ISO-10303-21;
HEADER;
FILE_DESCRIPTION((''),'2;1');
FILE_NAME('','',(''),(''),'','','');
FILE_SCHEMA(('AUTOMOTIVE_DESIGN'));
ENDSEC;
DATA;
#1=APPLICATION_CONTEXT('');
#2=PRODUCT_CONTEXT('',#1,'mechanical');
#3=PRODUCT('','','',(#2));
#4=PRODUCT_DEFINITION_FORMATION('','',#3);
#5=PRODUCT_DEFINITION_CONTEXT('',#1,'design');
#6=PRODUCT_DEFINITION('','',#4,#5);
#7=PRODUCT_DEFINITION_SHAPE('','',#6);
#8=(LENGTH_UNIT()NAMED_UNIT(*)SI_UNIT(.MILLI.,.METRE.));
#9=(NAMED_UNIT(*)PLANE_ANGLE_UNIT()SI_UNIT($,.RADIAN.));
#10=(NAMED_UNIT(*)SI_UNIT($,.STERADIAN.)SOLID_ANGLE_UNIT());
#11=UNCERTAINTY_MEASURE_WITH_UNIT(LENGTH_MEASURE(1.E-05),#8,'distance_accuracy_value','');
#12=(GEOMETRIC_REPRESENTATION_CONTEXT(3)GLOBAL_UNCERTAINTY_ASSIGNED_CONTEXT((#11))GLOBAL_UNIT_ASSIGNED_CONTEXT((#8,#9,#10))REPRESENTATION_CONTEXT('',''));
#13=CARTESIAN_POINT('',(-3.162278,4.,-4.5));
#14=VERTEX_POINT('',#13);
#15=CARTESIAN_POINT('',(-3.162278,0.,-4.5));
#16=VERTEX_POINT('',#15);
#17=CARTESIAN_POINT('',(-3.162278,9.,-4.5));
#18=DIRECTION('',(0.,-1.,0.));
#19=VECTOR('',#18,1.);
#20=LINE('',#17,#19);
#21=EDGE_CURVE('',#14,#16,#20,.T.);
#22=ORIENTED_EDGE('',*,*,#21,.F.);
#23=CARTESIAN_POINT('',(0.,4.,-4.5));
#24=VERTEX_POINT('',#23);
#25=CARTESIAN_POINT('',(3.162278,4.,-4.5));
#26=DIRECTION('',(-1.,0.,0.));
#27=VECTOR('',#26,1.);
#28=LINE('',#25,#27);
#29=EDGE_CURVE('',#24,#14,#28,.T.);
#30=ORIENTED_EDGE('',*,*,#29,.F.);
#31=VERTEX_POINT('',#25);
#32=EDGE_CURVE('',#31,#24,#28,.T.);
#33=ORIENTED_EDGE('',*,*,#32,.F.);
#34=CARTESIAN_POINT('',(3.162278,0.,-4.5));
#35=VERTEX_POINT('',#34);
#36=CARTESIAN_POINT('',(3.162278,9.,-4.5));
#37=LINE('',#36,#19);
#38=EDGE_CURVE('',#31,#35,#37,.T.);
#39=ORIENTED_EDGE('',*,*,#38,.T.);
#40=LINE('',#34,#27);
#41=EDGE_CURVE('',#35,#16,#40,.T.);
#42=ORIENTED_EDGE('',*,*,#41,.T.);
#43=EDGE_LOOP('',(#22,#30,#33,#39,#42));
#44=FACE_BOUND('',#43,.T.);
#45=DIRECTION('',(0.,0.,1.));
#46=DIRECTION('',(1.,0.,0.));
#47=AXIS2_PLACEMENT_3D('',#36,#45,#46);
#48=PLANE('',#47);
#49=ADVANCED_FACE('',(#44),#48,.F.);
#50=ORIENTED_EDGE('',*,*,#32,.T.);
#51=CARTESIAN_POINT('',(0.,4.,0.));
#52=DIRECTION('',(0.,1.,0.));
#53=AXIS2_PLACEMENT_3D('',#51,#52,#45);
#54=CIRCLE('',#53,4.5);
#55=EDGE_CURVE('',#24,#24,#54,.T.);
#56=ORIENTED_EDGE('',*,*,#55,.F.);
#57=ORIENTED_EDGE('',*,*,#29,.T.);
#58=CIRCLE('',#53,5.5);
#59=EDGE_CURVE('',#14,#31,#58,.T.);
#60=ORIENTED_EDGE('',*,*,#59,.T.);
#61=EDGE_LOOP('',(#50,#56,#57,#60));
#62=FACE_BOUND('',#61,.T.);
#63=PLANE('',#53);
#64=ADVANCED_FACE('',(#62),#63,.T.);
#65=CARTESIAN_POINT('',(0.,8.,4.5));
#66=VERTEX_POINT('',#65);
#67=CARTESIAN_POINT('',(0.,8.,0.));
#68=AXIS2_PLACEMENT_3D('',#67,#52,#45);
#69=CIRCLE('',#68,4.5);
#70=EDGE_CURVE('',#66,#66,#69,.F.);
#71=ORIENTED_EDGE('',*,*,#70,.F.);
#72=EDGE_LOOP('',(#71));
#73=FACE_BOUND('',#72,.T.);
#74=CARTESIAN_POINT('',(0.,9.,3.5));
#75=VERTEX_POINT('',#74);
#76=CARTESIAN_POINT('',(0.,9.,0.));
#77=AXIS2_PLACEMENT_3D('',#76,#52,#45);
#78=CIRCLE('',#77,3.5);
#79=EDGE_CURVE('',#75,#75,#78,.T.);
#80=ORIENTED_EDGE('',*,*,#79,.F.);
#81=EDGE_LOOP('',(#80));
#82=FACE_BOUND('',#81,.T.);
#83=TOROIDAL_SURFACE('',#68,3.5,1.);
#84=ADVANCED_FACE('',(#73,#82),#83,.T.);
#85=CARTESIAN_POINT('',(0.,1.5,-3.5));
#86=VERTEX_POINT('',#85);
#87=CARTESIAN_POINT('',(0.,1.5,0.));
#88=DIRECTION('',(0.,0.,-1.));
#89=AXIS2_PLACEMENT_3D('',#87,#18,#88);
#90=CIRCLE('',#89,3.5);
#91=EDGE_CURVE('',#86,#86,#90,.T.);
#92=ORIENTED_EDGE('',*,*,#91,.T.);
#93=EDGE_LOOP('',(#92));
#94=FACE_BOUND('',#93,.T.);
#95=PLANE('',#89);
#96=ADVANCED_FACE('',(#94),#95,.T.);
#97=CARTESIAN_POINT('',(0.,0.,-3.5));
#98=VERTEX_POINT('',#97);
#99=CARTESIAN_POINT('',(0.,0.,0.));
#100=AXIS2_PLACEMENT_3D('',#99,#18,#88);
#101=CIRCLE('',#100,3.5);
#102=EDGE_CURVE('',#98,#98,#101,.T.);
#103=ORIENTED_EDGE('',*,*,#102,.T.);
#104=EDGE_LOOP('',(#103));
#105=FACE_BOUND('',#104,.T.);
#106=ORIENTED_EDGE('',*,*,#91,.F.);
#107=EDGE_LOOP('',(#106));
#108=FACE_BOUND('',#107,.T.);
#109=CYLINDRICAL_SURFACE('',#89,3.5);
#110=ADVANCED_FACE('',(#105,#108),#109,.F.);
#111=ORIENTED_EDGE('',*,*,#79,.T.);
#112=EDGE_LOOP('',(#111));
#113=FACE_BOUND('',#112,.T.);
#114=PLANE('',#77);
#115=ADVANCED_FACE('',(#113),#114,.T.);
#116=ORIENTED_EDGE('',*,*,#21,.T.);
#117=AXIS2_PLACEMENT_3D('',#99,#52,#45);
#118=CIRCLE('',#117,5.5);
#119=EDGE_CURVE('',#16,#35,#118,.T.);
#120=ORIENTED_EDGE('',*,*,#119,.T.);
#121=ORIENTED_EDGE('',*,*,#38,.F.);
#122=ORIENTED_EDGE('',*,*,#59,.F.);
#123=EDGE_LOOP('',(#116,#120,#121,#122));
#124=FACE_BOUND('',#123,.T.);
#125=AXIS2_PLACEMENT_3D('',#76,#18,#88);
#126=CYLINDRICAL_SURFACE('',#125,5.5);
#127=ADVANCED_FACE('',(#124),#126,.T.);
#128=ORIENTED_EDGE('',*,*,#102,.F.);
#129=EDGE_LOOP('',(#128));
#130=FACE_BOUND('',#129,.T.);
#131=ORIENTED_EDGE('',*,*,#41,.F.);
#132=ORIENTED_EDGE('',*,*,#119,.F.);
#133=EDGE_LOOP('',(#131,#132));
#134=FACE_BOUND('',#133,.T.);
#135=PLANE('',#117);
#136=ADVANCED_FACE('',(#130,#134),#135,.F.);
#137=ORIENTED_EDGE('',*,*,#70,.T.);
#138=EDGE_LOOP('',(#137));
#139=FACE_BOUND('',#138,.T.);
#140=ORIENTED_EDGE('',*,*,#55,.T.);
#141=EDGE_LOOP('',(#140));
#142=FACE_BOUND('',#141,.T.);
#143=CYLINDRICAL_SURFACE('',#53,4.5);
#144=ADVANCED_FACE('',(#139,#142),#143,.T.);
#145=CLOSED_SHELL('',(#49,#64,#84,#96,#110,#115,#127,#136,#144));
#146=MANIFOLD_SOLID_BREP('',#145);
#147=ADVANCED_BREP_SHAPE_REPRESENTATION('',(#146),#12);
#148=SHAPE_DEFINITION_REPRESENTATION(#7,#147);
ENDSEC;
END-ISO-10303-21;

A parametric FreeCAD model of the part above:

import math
import FreeCAD as App
import Part
import Sketcher
from FreeCAD import Vector


def edges_at(feature, points):
    """Names of the edges that pass closest to the given points."""
    edges = feature.Shape.Edges
    near = lambda p: min(range(len(edges)), key=lambda i: edges[i].distToShape(Part.Vertex(*p))[0])
    return sorted({f"Edge{near(p) + 1}" for p in points})

doc = App.newDocument("Part")
body = doc.addObject("PartDesign::Body", "Body")

# Sketch on XZ plane
sketch1 = body.newObject("Sketcher::SketchObject", "Sketch")
sketch1.AttachmentSupport = (doc.getObject("XZ_Plane"), [""])
sketch1.MapMode = "FlatFace"
sketch1.addGeometry(Part.LineSegment(Vector(3, -4, 0), Vector(-3, -4, 0)), False)
sketch1.addGeometry(Part.ArcOfCircle(Part.Circle(Vector(0, 0, 0), Vector(0, 0, 1), 6), math.radians(-55), math.radians(235)), False)
sketch1.addConstraint(Sketcher.Constraint("Coincident", 0, 1, 1, 1))
sketch1.addConstraint(Sketcher.Constraint("Coincident", 1, 2, 0, 2))
sketch1.addConstraint(Sketcher.Constraint("Horizontal", 0))
sketch1.addConstraint(Sketcher.Constraint("Coincident", 1, 3, -1, 1))
sketch1.addConstraint(Sketcher.Constraint("Radius", 1, 5.5))
sketch1.addConstraint(Sketcher.Constraint("DistanceY", 0, 1, -1, 1, 4.5))
pad1 = body.newObject("PartDesign::Pad", "Pad")
pad1.Profile = sketch1
pad1.Length = 9
pad1.Reversed = True

# Sketch on XZ plane
sketch2 = body.newObject("Sketcher::SketchObject", "Sketch001")
sketch2.AttachmentSupport = (doc.getObject("XZ_Plane"), [""])
sketch2.MapMode = "FlatFace"
sketch2.addGeometry(Part.Circle(Vector(0, 0, 0), Vector(0, 0, 1), 3.5), False)
sketch2.addConstraint(Sketcher.Constraint("Coincident", 0, 3, -1, 1))
sketch2.addConstraint(Sketcher.Constraint("Diameter", 0, 7.0))
pocket1 = body.newObject("PartDesign::Pocket", "Pocket")
pocket1.Profile = sketch2
pocket1.Length = 1.5

# Sketch on XZ plane
sketch3 = body.newObject("Sketcher::SketchObject", "Sketch002")
sketch3.AttachmentSupport = (doc.getObject("XZ_Plane"), [""])
sketch3.MapMode = "FlatFace"
sketch3.AttachmentOffset = App.Placement(Vector(0, 0, -9), App.Rotation())
sketch3.addGeometry(Part.Circle(Vector(0, 0, 0), Vector(0, 0, 1), 6), False)
sketch3.addGeometry(Part.Circle(Vector(0, 0, 0), Vector(0, 0, 1), 4.5), False)
sketch3.addConstraint(Sketcher.Constraint("Coincident", 0, 3, -1, 1))
sketch3.addConstraint(Sketcher.Constraint("Coincident", 1, 3, -1, 1))
sketch3.addConstraint(Sketcher.Constraint("Diameter", 0, 12.0))
sketch3.addConstraint(Sketcher.Constraint("Diameter", 1, 9.0))
pocket2 = body.newObject("PartDesign::Pocket", "Pocket001")
pocket2.Profile = sketch3
pocket2.Length = 5
pocket2.Reversed = True
doc.recompute()

fillet = body.newObject("PartDesign::Fillet", "Fillet")
fillet.Base = (pocket2, edges_at(pocket2, [(-4.5, 9, 0)]))
fillet.Radius = 1

doc.recompute()
